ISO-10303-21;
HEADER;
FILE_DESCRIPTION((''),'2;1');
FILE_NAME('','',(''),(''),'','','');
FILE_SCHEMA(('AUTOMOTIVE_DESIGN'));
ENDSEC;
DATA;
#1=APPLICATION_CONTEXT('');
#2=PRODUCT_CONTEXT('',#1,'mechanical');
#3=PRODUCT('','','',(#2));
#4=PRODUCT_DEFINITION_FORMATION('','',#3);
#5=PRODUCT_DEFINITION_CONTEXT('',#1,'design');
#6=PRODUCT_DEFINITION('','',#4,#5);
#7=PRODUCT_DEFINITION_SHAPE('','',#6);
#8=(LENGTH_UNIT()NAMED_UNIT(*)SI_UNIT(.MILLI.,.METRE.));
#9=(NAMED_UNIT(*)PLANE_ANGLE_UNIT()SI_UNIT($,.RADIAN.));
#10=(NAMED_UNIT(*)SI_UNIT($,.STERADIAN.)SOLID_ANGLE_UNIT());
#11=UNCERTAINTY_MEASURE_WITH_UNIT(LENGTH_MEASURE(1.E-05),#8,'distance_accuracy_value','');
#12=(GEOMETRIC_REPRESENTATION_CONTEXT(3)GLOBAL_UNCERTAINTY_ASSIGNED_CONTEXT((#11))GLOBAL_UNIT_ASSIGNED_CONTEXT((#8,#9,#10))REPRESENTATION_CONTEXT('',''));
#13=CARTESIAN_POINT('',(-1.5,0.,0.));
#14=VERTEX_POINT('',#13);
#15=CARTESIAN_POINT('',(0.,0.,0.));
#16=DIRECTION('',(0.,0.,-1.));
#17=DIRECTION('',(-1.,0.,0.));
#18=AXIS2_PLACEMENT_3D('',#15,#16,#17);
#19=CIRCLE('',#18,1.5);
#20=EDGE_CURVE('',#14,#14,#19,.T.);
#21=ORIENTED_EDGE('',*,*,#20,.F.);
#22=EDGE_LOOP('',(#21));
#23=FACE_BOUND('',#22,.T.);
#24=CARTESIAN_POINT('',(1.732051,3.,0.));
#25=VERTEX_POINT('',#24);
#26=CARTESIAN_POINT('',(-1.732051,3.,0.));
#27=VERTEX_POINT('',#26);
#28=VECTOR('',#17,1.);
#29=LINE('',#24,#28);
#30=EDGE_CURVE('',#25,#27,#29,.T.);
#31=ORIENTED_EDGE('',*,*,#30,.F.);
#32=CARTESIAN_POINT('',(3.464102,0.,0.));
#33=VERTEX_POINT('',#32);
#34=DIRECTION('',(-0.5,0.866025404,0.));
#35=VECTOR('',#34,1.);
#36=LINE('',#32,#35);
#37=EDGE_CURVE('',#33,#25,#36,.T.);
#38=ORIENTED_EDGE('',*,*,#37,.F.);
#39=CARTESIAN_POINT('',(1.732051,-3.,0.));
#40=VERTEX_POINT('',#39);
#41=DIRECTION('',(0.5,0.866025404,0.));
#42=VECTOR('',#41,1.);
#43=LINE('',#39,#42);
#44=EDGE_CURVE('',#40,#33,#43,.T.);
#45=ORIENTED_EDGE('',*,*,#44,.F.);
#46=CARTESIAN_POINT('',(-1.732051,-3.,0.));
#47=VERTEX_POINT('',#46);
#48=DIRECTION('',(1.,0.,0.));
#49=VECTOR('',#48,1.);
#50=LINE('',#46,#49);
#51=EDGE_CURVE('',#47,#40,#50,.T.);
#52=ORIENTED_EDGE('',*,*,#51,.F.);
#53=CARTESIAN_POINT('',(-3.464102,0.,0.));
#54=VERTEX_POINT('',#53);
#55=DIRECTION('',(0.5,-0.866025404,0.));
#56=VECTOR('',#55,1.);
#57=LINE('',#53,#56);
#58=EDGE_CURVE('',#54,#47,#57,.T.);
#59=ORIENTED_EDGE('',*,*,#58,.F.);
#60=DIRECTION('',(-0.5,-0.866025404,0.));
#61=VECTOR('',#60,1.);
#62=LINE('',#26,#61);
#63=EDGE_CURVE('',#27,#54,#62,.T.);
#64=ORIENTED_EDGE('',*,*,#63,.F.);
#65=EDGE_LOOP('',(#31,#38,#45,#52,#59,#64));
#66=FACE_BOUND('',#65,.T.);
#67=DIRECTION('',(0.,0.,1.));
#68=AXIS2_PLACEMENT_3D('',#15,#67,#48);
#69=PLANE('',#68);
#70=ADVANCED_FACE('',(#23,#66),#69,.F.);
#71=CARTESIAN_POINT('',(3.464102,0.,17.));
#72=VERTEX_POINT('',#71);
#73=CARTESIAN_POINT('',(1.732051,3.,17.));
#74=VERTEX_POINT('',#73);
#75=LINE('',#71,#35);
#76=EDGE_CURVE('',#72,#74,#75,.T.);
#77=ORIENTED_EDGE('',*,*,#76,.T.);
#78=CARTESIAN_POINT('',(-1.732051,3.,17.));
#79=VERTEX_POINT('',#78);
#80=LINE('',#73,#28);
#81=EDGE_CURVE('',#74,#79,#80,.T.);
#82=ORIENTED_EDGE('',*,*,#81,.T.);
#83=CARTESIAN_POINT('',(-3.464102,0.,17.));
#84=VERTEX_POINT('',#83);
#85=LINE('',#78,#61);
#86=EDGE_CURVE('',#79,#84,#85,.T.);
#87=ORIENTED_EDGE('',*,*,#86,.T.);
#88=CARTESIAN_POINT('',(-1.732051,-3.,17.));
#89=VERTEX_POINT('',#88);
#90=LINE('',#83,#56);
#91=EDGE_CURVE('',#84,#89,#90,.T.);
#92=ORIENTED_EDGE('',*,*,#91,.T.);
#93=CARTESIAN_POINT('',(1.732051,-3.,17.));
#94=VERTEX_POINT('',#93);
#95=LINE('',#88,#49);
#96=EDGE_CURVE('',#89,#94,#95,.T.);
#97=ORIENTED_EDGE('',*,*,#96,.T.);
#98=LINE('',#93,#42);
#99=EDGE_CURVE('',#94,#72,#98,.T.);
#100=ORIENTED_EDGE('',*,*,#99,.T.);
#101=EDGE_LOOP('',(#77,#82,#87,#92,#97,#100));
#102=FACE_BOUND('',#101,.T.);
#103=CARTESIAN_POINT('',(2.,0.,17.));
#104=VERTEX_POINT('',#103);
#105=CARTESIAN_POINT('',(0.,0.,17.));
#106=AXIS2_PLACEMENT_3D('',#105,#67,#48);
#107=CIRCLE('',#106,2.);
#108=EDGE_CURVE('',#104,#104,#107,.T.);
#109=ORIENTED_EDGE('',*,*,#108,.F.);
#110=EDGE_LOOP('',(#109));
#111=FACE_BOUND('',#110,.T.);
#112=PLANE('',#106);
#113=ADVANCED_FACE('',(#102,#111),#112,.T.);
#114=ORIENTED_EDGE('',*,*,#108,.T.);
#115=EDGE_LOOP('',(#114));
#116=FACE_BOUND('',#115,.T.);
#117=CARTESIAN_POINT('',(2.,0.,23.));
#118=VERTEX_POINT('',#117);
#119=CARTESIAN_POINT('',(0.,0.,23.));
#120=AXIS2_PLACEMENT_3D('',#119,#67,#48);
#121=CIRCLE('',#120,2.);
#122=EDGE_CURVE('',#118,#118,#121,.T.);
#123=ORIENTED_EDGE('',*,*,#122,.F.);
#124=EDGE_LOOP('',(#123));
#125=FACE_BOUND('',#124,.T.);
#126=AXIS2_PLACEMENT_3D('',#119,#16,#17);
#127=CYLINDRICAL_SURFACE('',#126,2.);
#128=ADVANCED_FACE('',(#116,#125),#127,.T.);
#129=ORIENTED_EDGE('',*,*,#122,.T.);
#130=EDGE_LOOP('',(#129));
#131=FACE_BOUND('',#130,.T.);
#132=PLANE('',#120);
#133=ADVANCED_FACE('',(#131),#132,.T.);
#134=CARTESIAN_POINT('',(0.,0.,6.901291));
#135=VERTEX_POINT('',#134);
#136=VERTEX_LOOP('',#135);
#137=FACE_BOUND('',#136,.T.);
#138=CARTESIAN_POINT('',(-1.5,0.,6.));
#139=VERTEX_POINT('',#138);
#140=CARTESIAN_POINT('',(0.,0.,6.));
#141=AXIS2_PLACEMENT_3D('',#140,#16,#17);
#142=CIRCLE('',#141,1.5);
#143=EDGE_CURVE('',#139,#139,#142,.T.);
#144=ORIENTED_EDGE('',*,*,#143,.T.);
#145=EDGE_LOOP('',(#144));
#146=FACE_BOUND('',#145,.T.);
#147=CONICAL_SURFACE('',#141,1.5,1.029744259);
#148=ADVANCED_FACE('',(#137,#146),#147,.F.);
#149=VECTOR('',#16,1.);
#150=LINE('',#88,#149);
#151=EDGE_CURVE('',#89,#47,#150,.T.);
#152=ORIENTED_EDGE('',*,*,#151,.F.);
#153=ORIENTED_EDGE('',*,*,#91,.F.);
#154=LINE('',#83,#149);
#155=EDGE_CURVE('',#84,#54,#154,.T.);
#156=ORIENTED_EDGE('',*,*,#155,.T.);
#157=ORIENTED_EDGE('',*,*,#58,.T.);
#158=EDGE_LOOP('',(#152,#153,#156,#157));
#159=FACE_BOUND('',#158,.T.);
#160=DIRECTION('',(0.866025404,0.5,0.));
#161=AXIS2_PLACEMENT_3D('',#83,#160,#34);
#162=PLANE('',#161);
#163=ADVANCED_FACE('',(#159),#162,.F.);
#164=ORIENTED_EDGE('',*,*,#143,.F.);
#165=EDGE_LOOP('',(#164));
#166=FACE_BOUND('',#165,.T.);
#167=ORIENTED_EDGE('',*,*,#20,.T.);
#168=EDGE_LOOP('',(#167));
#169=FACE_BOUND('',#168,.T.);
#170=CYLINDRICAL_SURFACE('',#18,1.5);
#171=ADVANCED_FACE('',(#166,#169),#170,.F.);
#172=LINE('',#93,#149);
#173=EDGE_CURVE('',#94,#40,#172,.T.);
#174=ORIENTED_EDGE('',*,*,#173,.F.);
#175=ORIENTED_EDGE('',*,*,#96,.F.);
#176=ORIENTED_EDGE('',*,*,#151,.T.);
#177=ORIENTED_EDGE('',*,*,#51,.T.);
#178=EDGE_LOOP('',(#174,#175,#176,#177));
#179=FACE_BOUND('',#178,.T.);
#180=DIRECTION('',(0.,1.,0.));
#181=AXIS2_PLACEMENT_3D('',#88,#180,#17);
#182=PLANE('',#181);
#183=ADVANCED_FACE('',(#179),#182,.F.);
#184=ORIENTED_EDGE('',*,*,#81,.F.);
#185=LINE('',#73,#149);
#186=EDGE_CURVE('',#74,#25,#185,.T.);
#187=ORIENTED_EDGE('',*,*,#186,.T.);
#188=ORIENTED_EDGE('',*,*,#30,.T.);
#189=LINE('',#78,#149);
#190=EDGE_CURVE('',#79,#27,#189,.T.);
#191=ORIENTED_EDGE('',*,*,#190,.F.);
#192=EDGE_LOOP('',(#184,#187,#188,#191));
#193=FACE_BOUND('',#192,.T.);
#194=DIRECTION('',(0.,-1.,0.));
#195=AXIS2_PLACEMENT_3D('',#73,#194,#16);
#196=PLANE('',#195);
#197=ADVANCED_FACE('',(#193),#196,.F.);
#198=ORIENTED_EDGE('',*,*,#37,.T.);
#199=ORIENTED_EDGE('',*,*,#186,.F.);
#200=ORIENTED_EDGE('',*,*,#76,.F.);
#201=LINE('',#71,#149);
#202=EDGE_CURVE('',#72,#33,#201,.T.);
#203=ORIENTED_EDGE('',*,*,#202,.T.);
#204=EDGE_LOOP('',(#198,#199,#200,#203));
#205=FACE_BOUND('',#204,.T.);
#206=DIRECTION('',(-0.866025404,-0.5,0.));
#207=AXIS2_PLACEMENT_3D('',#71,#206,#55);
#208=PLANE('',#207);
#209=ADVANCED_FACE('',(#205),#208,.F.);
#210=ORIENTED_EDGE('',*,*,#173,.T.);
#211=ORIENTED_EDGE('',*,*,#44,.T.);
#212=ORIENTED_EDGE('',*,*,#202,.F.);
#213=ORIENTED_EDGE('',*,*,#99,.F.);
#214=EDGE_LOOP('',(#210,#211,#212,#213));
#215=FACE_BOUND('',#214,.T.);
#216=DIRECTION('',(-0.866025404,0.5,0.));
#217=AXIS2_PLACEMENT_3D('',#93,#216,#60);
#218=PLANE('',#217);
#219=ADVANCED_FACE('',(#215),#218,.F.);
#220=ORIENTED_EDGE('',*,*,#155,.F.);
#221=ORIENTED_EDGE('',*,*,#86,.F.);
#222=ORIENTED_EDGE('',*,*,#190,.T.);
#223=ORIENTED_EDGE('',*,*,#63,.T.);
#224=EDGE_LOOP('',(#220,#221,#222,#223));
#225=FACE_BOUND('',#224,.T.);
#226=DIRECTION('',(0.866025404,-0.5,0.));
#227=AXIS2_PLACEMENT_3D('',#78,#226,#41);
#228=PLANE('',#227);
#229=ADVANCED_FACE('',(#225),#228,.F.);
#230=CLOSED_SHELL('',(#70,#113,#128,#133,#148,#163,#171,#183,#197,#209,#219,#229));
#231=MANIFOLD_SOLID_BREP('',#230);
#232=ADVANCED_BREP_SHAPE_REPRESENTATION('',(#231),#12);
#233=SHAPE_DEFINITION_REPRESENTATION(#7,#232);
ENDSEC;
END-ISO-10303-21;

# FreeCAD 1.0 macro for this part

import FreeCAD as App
import Part
import Sketcher
from FreeCAD import Vector
Q = App.Units.Quantity

doc = App.newDocument("Part")
body = doc.addObject("PartDesign::Body", "Body")

sketch1 = body.newObject("Sketcher::SketchObject", "Sketch")
sketch1.AttachmentSupport = (doc.getObject("XY_Plane"), [""])
sketch1.MapMode = "FlatFace"
sketch1.addGeometry(Part.LineSegment(Vector(1.7, 3, 0), Vector(-1.7, 3, 0)), False)
sketch1.addGeometry(Part.LineSegment(Vector(-1.7, 3, 0), Vector(-3.5, 0, 0)), False)
sketch1.addGeometry(Part.LineSegment(Vector(-3.5, 0, 0), Vector(-1.7, -3, 0)), False)
sketch1.addGeometry(Part.LineSegment(Vector(-1.7, -3, 0), Vector(1.7, -3, 0)), False)
sketch1.addGeometry(Part.LineSegment(Vector(1.7, -3, 0), Vector(3.5, 0, 0)), False)
sketch1.addGeometry(Part.LineSegment(Vector(3.5, 0, 0), Vector(1.7, 3, 0)), False)
sketch1.addConstraint(Sketcher.Constraint("Coincident", 0, 2, 1, 1))
sketch1.addConstraint(Sketcher.Constraint("Coincident", 1, 2, 2, 1))
sketch1.addConstraint(Sketcher.Constraint("Coincident", 2, 2, 3, 1))
sketch1.addConstraint(Sketcher.Constraint("Coincident", 3, 2, 4, 1))
sketch1.addConstraint(Sketcher.Constraint("Coincident", 4, 2, 5, 1))
sketch1.addConstraint(Sketcher.Constraint("Coincident", 5, 2, 0, 1))
sketch1.addConstraint(Sketcher.Constraint("Horizontal", 0))
sketch1.addConstraint(Sketcher.Constraint("Horizontal", 3))
sketch1.addConstraint(Sketcher.Constraint("Symmetric", 0, 2, 3, 2, -1, 1))
sketch1.addConstraint(Sketcher.Constraint("Symmetric", 1, 2, 4, 2, -1, 1))
sketch1.addConstraint(Sketcher.Constraint("PointOnObject", 1, 2, -1))
sketch1.addConstraint(Sketcher.Constraint("Parallel", 2, 5))
sketch1.addConstraint(Sketcher.Constraint("Vertical", 0, 2, 2, 2))
sketch1.addConstraint(Sketcher.Constraint("Angle", 1, Q("-120 deg")))
sketch1.addConstraint(Sketcher.Constraint("DistanceY", -1, 1, 0, 2, Q("3 mm")))
sketch1.addConstraint(Sketcher.Constraint("DistanceX", 0, 2, 0, 1, Q("3.464102 mm")))
pad1 = body.newObject("PartDesign::Pad", "Pad")
pad1.Profile = sketch1
pad1.Length = 17

sketch2 = body.newObject("Sketcher::SketchObject", "Sketch001")
sketch2.AttachmentSupport = (doc.getObject("XY_Plane"), [""])
sketch2.MapMode = "FlatFace"
sketch2.AttachmentOffset = App.Placement(Vector(0, 0, 17), App.Rotation())
sketch2.addGeometry(Part.Circle(Vector(0, 0, 0), Vector(0, 0, 1), 2), False)
sketch2.addConstraint(Sketcher.Constraint("Coincident", 0, 3, -1, 1))
sketch2.addConstraint(Sketcher.Constraint("Diameter", 0, Q("4 mm")))
pad2 = body.newObject("PartDesign::Pad", "Pad001")
pad2.Profile = sketch2
pad2.Length = 6

sketch3 = body.newObject("Sketcher::SketchObject", "Sketch002")
sketch3.AttachmentSupport = (doc.getObject("XY_Plane"), [""])
sketch3.MapMode = "FlatFace"
sketch3.addGeometry(Part.Circle(Vector(0, 0, 0), Vector(0, 0, 1), 1.5), False)
sketch3.addConstraint(Sketcher.Constraint("Coincident", 0, 3, -1, 1))
sketch3.addConstraint(Sketcher.Constraint("Diameter", 0, Q("3 mm")))
doc.recompute()
hole = body.newObject("PartDesign::Hole", "Hole")
hole.Profile = sketch3
hole.ThreadType = "None"
hole.Diameter = 3
hole.DepthType = "Dimension"
hole.Depth = 6
hole.DrillPoint = "Angled"
hole.DrillPointAngle = 118
hole.Reversed = True

doc.recompute()
